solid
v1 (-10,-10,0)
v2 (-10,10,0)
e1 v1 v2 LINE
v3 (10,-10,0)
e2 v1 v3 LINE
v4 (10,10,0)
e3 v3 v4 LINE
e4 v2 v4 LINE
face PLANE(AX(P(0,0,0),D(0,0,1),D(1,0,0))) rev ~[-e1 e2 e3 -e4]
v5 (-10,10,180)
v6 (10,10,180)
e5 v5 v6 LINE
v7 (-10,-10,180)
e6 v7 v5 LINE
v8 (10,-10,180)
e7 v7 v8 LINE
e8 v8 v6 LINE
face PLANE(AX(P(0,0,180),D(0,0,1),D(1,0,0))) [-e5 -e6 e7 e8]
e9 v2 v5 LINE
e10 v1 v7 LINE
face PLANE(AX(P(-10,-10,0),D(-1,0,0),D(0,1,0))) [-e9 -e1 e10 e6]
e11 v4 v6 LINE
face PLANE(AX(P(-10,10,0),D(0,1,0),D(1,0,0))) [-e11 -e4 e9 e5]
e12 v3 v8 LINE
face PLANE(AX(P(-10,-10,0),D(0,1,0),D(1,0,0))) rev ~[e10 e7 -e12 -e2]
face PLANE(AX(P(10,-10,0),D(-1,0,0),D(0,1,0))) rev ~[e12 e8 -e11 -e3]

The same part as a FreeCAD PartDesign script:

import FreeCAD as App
import Part
import Sketcher
from FreeCAD import Vector


def add_polygon(sketch, points):
    """Adds a closed chain of lines whose ends are joined by coincident constraints."""
    first, n = sketch.GeometryCount, len(points)
    for a, b in zip(points, points[1:] + points[:1]):
        sketch.addGeometry(Part.LineSegment(App.Vector(*a, 0), App.Vector(*b, 0)), False)
    for i in range(n):
        sketch.addConstraint(Sketcher.Constraint("Coincident", first + i, 2, first + (i + 1) % n, 1))

doc = App.newDocument("Part")
body = doc.addObject("PartDesign::Body", "Body")

# Sketch on XY plane
sketch1 = body.newObject("Sketcher::SketchObject", "Sketch")
sketch1.AttachmentSupport = (doc.getObject("XY_Plane"), [""])
sketch1.MapMode = "FlatFace"
add_polygon(sketch1, [(-10, 10), (-10, -10), (10, -10), (10, 10)])  # lines 0-3
sketch1.addConstraint([
    Sketcher.Constraint("Vertical", 0),
    Sketcher.Constraint("Horizontal", 1),
    Sketcher.Constraint("Vertical", 2),
    Sketcher.Constraint("Horizontal", 3),
    Sketcher.Constraint("Symmetric", 0, 2, 2, 2, -1, 1),
    Sketcher.Constraint("Equal", 3, 0),
    Sketcher.Constraint("DistanceX", 1, 1, 1, 2, 20.0),
])
pad1 = body.newObject("PartDesign::Pad", "Pad")
pad1.Profile = sketch1
pad1.Length = 180

doc.recompute()
